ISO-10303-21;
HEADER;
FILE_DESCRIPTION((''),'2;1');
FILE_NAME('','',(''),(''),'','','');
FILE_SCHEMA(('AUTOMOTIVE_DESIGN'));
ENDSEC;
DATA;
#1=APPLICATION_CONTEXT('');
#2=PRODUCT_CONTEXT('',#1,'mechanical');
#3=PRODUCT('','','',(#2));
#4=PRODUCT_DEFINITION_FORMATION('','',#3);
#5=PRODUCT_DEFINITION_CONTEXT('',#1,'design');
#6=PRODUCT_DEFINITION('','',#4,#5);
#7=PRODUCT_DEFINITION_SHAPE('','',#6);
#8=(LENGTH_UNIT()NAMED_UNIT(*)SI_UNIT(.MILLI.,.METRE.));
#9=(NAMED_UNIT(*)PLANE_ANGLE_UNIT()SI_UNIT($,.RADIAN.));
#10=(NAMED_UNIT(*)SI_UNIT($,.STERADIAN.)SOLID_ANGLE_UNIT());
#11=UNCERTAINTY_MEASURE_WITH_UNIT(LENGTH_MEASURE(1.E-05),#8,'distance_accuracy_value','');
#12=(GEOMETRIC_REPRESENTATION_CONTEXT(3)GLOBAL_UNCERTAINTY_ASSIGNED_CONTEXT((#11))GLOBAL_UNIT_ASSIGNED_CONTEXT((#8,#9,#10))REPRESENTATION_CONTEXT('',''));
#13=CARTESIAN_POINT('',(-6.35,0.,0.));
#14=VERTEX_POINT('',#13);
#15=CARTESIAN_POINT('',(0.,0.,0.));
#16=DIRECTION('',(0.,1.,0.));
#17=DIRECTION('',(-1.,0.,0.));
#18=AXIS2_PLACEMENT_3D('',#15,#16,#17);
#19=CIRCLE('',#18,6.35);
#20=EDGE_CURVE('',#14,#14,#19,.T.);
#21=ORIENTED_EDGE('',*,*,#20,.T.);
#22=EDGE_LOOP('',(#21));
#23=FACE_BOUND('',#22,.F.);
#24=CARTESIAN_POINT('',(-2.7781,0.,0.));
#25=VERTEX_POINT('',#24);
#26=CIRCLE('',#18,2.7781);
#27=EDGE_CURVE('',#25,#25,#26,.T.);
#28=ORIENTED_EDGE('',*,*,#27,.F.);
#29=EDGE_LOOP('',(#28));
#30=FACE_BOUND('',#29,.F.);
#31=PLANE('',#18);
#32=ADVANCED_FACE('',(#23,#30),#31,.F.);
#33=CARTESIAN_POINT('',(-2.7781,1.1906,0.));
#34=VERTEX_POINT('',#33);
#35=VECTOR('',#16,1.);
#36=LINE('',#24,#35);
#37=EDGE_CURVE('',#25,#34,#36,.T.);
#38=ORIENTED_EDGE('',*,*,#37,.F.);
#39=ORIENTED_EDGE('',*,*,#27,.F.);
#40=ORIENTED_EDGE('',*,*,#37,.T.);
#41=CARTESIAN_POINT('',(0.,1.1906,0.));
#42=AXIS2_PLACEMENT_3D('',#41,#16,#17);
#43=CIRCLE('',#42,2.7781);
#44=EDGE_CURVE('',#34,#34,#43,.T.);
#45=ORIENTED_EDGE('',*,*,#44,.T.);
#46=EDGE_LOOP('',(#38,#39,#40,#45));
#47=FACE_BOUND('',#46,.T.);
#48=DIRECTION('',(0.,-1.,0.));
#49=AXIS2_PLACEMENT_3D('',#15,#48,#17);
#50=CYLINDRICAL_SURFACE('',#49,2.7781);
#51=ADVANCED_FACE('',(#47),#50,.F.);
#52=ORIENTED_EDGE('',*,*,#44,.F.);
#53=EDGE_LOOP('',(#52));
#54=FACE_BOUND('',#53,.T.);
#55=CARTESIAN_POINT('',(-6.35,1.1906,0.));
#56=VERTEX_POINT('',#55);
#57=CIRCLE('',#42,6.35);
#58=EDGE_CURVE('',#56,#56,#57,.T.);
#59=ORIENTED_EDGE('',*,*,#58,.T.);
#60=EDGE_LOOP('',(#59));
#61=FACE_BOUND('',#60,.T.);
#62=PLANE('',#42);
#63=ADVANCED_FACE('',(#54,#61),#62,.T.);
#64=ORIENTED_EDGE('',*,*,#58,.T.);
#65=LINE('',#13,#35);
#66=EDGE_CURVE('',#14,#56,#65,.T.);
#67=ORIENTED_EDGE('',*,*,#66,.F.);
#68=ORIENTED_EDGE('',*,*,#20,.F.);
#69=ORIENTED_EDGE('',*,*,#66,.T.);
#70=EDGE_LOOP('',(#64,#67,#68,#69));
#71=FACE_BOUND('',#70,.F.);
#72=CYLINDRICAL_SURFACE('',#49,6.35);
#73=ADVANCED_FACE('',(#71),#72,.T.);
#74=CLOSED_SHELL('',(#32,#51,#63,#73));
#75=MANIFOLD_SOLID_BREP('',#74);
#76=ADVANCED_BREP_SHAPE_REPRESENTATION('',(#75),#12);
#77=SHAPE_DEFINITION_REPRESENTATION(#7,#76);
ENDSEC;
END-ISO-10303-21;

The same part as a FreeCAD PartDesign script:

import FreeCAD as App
import Part
import Sketcher
Q = App.Units.Quantity

doc = App.newDocument("Part")
params = doc.addObject("Spreadsheet::Sheet", "Params")
for row, (alias, value) in enumerate([
    ("sketch1_diameter", "0.5 in"),
    ("sketch1_diameter2", "0.218748 in"),
    ("pad1_length", "0.046874 in"),
], start=1):
    params.set(f"A{row}", alias)
    params.set(f"B{row}", "=" + value)
    params.setAlias(f"B{row}", alias)

body = doc.addObject("PartDesign::Body", "Body")

# Sketch on XZ plane
sketch1 = body.newObject("Sketcher::SketchObject", "Sketch")
sketch1.AttachmentSupport = (doc.getObject("XZ_Plane"), [""])
sketch1.MapMode = "FlatFace"
sketch1.addGeometry(Part.Circle(App.Vector(0, 0, 0), App.Vector(0, 0, 1), 6.3), False)
sketch1.addGeometry(Part.Circle(App.Vector(0, 0, 0), App.Vector(0, 0, 1), 2.8), False)
sketch1.addConstraint(Sketcher.Constraint("Coincident", 0, 3, -1, 1))
sketch1.addConstraint(Sketcher.Constraint("Coincident", 1, 3, -1, 1))
sketch1.addConstraint(Sketcher.Constraint("Diameter", 0, Q("0.5 in")))
sketch1.addConstraint(Sketcher.Constraint("Diameter", 1, Q("0.218748 in")))
sketch1.setExpression("Constraints[2]", "Params.sketch1_diameter")
sketch1.setExpression("Constraints[3]", "Params.sketch1_diameter2")
pad1 = body.newObject("PartDesign::Pad", "Pad")
pad1.Profile = sketch1
pad1.setExpression("Length", "Params.pad1_length")
pad1.Reversed = True

doc.recompute()
